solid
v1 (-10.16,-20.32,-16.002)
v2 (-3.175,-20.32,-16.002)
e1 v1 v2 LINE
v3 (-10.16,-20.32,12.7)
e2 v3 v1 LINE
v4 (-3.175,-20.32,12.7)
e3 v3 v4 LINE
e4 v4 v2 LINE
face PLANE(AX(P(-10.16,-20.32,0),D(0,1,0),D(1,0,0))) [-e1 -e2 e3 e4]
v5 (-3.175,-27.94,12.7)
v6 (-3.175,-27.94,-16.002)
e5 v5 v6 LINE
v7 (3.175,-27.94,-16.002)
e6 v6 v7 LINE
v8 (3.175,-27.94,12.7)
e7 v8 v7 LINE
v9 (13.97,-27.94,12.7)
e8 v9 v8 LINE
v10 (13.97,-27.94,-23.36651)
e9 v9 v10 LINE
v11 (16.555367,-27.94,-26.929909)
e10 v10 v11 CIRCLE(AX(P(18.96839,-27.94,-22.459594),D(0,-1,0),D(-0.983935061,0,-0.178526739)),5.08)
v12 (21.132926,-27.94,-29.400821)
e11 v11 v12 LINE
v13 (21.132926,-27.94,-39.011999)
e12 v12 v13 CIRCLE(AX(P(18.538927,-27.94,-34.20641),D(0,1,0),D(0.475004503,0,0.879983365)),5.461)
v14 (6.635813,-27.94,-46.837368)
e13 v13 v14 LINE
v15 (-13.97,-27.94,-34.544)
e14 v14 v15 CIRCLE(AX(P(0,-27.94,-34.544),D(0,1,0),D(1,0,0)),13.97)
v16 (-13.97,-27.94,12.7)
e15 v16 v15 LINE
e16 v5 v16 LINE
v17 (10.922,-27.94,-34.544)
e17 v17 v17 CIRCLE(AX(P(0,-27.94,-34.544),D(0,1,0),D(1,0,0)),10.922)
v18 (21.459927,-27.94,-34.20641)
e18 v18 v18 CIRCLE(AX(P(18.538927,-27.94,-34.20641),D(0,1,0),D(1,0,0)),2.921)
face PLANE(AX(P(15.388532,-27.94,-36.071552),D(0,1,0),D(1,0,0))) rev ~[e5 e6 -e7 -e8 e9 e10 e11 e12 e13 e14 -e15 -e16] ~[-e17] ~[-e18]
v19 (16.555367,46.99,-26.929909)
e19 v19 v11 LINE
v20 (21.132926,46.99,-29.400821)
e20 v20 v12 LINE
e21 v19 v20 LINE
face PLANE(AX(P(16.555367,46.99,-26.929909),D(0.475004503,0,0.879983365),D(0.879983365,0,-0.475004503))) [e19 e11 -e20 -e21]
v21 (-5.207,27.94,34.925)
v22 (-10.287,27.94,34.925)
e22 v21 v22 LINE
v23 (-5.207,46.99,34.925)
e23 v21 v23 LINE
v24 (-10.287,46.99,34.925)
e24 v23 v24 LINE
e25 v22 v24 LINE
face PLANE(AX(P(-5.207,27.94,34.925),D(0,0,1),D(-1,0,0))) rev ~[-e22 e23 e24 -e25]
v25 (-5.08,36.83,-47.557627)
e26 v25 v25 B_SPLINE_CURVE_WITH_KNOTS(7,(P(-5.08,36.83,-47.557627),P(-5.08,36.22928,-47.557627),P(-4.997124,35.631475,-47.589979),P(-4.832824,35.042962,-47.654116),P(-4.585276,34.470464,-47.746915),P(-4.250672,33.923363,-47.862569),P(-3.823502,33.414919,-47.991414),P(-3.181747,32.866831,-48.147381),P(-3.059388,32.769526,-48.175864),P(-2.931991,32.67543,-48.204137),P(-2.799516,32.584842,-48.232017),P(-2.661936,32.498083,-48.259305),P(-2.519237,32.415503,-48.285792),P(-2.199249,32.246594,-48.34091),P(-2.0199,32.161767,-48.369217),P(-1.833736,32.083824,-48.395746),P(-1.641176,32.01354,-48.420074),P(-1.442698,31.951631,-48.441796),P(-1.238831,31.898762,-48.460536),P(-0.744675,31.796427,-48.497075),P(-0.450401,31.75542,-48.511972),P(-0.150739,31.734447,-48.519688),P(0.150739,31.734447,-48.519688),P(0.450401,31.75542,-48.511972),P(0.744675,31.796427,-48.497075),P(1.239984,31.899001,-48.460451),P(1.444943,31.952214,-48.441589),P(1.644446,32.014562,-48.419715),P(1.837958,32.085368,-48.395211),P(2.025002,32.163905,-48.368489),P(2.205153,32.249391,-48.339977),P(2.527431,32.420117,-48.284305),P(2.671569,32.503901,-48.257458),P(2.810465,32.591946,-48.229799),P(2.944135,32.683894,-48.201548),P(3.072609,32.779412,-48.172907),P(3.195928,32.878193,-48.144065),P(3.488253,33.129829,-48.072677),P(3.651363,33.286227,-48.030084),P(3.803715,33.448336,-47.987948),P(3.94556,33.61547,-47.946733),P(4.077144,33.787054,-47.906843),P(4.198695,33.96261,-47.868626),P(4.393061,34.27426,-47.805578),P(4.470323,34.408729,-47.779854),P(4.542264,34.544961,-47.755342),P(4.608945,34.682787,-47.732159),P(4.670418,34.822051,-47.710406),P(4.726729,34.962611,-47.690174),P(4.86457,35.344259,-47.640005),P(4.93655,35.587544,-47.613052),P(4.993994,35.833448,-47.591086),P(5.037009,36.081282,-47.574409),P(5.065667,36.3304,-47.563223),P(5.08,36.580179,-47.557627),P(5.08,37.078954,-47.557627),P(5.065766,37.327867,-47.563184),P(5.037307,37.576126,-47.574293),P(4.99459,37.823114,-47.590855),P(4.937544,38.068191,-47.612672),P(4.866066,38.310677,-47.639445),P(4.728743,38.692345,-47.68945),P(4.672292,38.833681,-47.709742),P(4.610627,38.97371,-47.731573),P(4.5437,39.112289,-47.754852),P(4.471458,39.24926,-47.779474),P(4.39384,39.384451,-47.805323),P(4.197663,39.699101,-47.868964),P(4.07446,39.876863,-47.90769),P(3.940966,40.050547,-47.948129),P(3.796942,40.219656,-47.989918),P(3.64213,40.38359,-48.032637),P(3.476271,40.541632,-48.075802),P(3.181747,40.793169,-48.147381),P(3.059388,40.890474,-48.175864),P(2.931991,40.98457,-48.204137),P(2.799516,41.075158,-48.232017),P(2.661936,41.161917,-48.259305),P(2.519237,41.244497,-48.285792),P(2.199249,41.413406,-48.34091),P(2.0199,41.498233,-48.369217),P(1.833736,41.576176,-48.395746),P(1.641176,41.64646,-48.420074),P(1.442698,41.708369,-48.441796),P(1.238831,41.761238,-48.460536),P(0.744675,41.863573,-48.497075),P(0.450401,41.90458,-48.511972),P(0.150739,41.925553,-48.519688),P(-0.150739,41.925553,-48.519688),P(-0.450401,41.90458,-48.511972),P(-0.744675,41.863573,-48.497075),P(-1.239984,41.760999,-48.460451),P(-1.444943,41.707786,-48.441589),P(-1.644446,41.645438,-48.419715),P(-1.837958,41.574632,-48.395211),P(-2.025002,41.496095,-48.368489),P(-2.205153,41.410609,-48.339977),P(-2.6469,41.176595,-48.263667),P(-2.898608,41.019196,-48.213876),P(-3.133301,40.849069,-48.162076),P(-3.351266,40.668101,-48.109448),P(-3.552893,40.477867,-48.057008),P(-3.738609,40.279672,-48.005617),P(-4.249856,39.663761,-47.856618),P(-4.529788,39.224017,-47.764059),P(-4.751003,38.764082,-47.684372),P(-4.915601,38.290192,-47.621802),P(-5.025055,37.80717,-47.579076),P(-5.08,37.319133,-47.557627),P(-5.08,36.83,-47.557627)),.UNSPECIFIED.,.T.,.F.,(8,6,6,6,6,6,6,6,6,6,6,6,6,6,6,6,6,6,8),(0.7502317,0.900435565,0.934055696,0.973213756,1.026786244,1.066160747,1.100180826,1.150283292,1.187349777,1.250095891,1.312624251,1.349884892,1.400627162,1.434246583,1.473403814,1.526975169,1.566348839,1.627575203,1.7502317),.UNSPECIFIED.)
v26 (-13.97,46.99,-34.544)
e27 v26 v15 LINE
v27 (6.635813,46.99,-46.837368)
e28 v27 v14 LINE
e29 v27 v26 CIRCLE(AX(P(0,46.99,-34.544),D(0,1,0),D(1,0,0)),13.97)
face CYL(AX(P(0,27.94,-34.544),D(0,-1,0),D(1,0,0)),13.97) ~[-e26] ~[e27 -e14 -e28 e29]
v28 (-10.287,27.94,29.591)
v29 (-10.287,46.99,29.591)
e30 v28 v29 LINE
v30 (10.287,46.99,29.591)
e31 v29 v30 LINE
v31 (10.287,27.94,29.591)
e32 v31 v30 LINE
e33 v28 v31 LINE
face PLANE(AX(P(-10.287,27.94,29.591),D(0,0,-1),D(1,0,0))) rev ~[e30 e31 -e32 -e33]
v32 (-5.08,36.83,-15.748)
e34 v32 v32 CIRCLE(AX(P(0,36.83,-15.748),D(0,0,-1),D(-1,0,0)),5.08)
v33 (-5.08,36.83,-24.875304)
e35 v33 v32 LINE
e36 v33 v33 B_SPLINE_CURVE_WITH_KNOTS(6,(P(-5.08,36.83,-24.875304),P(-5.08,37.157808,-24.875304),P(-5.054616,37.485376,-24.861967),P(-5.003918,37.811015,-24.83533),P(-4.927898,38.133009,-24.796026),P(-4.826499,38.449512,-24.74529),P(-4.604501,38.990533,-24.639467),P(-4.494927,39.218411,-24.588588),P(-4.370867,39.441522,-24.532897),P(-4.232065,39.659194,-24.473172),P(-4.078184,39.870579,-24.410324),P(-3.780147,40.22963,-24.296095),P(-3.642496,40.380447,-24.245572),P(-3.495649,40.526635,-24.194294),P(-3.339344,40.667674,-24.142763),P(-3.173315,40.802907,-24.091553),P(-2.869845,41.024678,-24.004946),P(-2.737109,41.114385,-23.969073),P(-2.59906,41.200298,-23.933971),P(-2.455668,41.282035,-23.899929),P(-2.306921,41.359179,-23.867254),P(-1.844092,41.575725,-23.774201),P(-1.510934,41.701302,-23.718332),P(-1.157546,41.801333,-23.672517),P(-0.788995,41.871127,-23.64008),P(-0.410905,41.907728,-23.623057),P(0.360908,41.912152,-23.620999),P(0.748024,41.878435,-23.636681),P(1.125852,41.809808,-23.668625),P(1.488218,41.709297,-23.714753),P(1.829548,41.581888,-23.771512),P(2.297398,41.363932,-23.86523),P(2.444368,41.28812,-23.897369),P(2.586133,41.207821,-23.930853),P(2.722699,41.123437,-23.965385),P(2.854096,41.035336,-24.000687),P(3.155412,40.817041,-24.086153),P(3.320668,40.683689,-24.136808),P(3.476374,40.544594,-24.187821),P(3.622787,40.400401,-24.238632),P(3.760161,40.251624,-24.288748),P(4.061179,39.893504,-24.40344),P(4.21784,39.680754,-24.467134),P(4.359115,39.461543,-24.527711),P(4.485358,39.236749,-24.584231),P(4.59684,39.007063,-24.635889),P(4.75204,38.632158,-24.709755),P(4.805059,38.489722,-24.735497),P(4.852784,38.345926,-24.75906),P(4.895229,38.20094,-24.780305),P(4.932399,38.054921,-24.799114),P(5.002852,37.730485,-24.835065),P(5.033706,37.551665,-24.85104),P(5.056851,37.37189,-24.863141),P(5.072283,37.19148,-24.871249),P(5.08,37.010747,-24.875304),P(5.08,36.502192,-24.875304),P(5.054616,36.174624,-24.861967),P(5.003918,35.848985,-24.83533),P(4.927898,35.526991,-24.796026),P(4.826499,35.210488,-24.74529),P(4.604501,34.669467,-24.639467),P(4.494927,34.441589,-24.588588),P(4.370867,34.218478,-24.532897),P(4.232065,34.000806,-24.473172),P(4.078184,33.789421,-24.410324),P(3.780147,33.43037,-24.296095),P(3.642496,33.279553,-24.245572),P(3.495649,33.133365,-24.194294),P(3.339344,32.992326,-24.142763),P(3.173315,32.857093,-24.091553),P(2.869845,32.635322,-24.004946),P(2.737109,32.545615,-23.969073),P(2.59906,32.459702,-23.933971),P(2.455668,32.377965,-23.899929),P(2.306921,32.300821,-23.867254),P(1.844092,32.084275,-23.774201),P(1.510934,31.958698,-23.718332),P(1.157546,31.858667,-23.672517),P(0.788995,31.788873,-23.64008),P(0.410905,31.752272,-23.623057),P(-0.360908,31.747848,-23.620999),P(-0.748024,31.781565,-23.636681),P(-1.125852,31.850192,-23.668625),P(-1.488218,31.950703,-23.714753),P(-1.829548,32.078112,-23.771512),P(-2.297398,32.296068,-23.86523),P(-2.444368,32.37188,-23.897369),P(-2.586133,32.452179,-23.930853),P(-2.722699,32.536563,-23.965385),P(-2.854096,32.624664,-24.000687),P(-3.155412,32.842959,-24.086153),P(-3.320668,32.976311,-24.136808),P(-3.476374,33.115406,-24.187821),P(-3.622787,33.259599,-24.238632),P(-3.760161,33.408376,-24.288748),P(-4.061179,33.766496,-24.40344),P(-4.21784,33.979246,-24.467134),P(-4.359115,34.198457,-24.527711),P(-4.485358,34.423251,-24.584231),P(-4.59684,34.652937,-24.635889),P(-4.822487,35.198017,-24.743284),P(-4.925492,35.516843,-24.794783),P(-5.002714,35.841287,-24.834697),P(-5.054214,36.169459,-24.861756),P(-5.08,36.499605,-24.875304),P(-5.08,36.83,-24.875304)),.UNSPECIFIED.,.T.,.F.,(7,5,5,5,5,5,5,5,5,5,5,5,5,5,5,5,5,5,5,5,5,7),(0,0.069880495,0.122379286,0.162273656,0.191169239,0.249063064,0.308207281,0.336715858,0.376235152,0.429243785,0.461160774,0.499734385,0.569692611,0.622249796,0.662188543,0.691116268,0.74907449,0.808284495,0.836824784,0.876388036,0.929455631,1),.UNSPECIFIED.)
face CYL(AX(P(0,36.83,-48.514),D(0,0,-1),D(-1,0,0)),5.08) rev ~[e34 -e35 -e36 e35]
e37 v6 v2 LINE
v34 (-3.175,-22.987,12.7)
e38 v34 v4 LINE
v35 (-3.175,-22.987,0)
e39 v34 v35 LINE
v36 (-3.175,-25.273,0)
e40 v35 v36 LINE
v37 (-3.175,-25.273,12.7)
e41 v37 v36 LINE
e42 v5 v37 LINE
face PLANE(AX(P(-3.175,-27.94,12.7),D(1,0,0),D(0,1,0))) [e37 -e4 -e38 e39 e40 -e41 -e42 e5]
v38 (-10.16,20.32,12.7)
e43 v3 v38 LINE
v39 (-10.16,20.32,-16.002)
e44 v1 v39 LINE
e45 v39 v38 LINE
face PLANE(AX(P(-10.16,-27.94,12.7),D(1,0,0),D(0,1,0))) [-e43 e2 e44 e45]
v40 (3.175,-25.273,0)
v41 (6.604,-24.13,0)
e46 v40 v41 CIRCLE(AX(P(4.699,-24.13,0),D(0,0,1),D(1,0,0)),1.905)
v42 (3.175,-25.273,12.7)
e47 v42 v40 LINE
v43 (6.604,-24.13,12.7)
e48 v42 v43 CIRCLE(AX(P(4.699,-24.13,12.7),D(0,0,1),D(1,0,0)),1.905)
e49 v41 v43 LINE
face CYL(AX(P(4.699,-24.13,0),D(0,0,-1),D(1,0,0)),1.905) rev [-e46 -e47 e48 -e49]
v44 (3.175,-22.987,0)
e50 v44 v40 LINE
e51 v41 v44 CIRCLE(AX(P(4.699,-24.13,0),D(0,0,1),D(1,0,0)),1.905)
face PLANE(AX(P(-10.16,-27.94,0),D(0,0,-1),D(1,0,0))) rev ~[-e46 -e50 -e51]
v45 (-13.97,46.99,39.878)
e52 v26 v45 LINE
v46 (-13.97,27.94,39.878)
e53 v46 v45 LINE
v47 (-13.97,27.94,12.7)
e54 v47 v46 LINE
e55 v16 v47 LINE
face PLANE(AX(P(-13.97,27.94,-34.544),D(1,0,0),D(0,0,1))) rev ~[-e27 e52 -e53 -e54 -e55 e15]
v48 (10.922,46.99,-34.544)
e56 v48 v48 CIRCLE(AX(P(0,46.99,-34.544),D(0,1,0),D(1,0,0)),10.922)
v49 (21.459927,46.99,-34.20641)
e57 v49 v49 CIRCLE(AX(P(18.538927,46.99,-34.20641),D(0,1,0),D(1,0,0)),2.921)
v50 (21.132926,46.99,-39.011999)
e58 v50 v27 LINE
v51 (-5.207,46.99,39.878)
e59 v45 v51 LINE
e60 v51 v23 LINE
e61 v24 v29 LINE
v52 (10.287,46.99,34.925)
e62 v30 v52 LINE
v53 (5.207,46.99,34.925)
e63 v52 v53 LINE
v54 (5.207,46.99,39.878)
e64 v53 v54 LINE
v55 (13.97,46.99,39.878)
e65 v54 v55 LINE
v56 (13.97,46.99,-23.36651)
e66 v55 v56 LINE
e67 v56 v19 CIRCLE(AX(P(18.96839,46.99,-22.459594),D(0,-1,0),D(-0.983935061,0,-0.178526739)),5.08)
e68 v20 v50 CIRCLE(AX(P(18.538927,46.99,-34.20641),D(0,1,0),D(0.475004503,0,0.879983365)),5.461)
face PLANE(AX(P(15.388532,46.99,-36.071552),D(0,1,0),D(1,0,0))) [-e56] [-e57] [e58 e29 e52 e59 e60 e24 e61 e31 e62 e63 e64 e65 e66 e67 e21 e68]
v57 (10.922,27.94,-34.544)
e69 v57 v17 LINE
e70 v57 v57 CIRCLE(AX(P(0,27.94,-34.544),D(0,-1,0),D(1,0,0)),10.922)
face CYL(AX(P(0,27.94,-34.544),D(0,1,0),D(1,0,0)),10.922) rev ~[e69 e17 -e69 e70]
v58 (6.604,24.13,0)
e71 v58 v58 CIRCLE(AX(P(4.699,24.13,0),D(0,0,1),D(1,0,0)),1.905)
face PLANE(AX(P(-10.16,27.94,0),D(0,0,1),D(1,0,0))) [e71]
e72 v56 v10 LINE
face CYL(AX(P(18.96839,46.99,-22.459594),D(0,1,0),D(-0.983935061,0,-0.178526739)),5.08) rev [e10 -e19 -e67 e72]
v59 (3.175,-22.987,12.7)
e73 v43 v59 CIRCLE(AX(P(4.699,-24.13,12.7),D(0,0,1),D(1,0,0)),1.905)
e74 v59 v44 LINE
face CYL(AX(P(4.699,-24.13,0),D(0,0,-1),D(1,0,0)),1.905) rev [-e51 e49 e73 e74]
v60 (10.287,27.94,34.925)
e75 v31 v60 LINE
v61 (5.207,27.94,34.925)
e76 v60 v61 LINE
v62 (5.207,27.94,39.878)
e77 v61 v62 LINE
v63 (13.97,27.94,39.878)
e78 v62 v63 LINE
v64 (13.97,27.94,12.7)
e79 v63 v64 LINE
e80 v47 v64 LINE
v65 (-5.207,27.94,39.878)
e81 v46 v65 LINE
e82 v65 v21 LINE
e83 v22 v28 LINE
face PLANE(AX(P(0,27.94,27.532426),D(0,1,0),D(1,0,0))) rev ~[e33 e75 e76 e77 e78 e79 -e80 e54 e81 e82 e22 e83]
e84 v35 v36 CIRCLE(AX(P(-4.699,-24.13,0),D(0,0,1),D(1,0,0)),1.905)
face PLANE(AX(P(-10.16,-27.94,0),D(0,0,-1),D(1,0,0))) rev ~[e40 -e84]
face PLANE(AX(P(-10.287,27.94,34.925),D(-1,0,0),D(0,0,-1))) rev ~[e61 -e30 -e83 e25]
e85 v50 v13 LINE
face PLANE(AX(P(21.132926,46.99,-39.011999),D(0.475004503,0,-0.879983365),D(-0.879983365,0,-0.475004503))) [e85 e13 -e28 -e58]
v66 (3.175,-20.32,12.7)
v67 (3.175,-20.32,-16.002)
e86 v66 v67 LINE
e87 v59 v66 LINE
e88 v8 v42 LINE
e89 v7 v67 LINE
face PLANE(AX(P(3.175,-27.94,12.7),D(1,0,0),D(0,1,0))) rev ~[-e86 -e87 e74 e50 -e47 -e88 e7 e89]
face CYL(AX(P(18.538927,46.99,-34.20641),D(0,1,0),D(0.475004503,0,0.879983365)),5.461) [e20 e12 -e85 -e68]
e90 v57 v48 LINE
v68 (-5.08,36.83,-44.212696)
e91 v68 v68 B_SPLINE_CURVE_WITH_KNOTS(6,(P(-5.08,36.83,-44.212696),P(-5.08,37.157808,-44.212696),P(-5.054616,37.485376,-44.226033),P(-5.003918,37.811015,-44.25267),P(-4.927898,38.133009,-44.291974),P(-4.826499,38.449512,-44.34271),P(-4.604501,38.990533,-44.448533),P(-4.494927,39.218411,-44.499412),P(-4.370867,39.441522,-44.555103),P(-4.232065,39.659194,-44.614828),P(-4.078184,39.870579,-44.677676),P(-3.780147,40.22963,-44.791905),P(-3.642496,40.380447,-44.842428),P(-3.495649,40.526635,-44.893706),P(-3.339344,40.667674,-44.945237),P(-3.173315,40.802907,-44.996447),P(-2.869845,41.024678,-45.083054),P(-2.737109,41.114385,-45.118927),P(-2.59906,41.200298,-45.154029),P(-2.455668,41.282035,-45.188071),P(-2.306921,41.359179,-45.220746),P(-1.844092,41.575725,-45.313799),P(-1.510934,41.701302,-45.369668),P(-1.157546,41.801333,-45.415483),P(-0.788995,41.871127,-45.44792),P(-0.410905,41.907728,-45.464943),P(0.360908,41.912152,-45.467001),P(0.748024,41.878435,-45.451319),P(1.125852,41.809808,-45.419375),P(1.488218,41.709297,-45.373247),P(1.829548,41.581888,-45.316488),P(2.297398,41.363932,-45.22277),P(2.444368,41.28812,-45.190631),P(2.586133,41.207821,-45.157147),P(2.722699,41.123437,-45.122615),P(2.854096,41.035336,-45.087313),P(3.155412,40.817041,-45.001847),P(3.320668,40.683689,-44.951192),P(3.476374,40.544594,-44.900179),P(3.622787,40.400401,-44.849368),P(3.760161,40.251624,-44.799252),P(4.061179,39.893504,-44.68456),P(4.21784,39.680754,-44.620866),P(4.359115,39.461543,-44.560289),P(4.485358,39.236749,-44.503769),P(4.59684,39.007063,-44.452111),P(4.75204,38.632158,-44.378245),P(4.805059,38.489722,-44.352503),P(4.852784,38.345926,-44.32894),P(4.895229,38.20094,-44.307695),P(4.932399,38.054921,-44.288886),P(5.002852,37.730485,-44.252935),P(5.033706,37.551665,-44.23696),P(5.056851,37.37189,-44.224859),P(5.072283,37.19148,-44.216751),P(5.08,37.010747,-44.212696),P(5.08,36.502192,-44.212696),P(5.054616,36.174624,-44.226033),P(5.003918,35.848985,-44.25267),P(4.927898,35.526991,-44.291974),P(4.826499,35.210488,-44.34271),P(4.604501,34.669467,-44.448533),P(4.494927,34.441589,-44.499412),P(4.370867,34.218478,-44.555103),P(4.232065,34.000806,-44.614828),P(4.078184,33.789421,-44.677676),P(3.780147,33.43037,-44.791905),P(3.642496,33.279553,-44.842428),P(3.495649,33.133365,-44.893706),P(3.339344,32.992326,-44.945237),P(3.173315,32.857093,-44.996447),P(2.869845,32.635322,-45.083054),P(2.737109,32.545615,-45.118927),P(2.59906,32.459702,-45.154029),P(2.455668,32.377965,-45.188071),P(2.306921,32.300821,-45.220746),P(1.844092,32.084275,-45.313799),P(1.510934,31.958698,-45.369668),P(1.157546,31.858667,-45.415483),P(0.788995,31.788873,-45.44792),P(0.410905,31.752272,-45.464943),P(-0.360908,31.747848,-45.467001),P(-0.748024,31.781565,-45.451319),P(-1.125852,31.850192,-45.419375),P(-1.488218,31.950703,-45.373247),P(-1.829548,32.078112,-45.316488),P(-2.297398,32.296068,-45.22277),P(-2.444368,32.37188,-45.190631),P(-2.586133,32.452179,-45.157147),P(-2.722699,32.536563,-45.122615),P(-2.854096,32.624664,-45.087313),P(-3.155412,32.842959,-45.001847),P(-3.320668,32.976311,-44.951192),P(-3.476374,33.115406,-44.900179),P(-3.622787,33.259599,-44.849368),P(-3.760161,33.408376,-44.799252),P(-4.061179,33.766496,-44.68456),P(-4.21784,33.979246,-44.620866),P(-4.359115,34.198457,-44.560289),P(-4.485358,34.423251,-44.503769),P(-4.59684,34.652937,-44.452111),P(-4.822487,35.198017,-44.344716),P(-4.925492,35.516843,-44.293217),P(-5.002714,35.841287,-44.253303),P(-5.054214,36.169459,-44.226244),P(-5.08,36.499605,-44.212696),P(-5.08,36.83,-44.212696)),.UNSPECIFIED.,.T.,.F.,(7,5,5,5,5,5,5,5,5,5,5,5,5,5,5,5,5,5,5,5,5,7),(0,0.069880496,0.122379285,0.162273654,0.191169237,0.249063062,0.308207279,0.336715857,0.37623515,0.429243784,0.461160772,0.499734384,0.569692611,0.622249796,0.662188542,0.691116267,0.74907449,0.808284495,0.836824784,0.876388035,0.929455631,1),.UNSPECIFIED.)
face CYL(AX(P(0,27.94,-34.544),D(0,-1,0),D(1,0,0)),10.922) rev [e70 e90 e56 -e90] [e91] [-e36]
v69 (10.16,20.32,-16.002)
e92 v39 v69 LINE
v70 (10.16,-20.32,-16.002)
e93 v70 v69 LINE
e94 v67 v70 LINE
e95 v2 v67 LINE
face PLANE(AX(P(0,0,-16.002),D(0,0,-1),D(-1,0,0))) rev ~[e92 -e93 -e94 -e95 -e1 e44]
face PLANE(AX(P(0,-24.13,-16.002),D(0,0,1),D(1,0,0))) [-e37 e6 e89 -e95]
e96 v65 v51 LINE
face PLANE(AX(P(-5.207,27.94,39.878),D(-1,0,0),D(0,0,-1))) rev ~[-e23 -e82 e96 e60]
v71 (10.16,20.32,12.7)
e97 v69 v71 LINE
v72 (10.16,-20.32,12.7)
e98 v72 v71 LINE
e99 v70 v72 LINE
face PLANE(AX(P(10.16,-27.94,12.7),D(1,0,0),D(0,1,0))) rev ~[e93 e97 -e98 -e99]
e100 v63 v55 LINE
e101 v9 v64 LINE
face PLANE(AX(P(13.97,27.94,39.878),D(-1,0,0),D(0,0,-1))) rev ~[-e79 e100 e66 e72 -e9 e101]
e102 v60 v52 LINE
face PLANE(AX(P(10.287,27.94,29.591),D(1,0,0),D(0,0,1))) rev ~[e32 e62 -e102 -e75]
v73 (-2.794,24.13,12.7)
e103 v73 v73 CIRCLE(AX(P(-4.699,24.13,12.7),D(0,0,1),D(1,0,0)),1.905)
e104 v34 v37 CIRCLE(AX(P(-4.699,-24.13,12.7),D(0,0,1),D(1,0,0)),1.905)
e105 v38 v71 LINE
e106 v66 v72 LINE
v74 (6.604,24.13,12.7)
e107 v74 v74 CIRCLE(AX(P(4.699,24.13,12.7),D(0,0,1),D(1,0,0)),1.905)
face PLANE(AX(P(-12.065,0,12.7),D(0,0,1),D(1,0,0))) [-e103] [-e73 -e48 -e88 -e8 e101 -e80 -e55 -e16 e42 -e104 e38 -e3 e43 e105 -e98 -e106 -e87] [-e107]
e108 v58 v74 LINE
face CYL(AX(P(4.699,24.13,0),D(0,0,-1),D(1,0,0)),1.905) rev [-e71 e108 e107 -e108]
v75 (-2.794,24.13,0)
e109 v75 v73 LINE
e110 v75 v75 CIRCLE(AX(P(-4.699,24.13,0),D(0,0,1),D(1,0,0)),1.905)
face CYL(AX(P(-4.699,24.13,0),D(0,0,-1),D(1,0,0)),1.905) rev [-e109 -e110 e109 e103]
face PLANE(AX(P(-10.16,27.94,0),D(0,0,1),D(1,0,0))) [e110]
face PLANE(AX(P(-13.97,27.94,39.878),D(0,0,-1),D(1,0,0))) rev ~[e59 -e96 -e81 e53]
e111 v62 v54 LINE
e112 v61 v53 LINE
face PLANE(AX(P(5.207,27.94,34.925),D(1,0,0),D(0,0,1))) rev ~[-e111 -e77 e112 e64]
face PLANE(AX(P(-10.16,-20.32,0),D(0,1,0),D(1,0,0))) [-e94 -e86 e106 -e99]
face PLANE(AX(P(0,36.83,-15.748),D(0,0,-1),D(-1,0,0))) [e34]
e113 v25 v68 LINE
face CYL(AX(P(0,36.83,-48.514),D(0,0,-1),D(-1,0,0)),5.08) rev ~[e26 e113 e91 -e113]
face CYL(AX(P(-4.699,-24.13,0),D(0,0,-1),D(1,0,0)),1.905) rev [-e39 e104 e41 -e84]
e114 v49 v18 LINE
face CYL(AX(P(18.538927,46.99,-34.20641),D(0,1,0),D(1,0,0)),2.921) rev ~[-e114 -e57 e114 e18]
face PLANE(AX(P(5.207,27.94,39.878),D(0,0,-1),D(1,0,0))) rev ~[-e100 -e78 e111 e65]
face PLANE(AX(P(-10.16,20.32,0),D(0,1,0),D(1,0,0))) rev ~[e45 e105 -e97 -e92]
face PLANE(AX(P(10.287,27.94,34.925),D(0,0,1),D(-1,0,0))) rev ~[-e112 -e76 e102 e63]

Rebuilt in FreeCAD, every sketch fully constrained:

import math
import FreeCAD as App
import Part
import Sketcher
Q = App.Units.Quantity

doc = App.newDocument("Part")
body = doc.addObject("PartDesign::Body", "Body")

sketch1 = doc.addObject("Sketcher::SketchObject", "Sketch")
body.addObject(sketch1)
sketch1.AttachmentSupport = (doc.XY_Plane, [""])
sketch1.MapMode = "FlatFace"
sketch1.addGeometry(Part.LineSegment(App.Vector(-10.16, 27.94, 0), App.Vector(-10.16, 20.32, 0)), False)
sketch1.addGeometry(Part.LineSegment(App.Vector(-10.16, 20.32, 0), App.Vector(10.16, 20.32, 0)), False)
sketch1.addGeometry(Part.LineSegment(App.Vector(10.16, 20.32, 0), App.Vector(10.16, 27.94, 0)), False)
sketch1.addGeometry(Part.LineSegment(App.Vector(10.16, 27.94, 0), App.Vector(-10.16, 27.94, 0)), False)
sketch1.addGeometry(Part.Circle(App.Vector(-4.699, 24.13, 0), App.Vector(0, 0, 1), 1.905), False)
sketch1.addGeometry(Part.Circle(App.Vector(4.699, 24.13, 0), App.Vector(0, 0, 1), 1.905), False)
sketch1.addConstraint(Sketcher.Constraint("Coincident", 0, 2, 1, 1))
sketch1.addConstraint(Sketcher.Constraint("Coincident", 1, 2, 2, 1))
sketch1.addConstraint(Sketcher.Constraint("Coincident", 2, 2, 3, 1))
sketch1.addConstraint(Sketcher.Constraint("Coincident", 3, 2, 0, 1))
sketch1.addConstraint(Sketcher.Constraint("Vertical", 0))
sketch1.addConstraint(Sketcher.Constraint("Horizontal", 1))
sketch1.addConstraint(Sketcher.Constraint("Vertical", 2))
sketch1.addConstraint(Sketcher.Constraint("Horizontal", 3))
sketch1.addConstraint(Sketcher.Constraint("Equal", 4, 5))
sketch1.addConstraint(Sketcher.Constraint("Symmetric", 4, 3, 5, 3, -2))
sketch1.addConstraint(Sketcher.Constraint("Diameter", 4, Q("0.15 in")))
sketch1.addConstraint(Sketcher.Constraint("DistanceX", 1, 1, 1, 2, Q("0.8 in")))
sketch1.addConstraint(Sketcher.Constraint("DistanceY", 0, 2, 0, 1, Q("0.3 in")))
sketch1.addConstraint(Sketcher.Constraint("DistanceX", 0, 2, -1, 1, Q("0.4 in")))
sketch1.addConstraint(Sketcher.Constraint("DistanceY", -1, 1, 0, 2, Q("0.8 in")))
sketch1.addConstraint(Sketcher.Constraint("DistanceY", -1, 1, 4, 3, Q("0.95 in")))
sketch1.addConstraint(Sketcher.Constraint("DistanceX", 4, 3, 5, 3, Q("0.37 in")))
pad1 = doc.addObject("PartDesign::Pad", "Pad")
body.addObject(pad1)
pad1.Profile = sketch1
pad1.Length = Q("0.5 in")
body2 = doc.addObject("PartDesign::Body", "Body001")

sketch2 = doc.addObject("Sketcher::SketchObject", "Sketch001")
body2.addObject(sketch2)
sketch2.AttachmentSupport = (doc.getObject("XY_Plane001"), [""])
sketch2.MapMode = "FlatFace"
sketch2.addGeometry(Part.LineSegment(App.Vector(-10.16, -20.32, 0), App.Vector(-10.16, -27.94, 0)), False)
sketch2.addGeometry(Part.LineSegment(App.Vector(-10.16, -27.94, 0), App.Vector(10.16, -27.94, 0)), False)
sketch2.addGeometry(Part.LineSegment(App.Vector(10.16, -27.94, 0), App.Vector(10.16, -20.32, 0)), False)
sketch2.addGeometry(Part.LineSegment(App.Vector(10.16, -20.32, 0), App.Vector(-10.16, -20.32, 0)), False)
sketch2.addGeometry(Part.Circle(App.Vector(-4.699, -24.13, 0), App.Vector(0, 0, 1), 1.905), False)
sketch2.addGeometry(Part.Circle(App.Vector(4.699, -24.13, 0), App.Vector(0, 0, 1), 1.905), False)
sketch2.addConstraint(Sketcher.Constraint("Coincident", 0, 2, 1, 1))
sketch2.addConstraint(Sketcher.Constraint("Coincident", 1, 2, 2, 1))
sketch2.addConstraint(Sketcher.Constraint("Coincident", 2, 2, 3, 1))
sketch2.addConstraint(Sketcher.Constraint("Coincident", 3, 2, 0, 1))
sketch2.addConstraint(Sketcher.Constraint("Vertical", 0))
sketch2.addConstraint(Sketcher.Constraint("Horizontal", 1))
sketch2.addConstraint(Sketcher.Constraint("Vertical", 2))
sketch2.addConstraint(Sketcher.Constraint("Horizontal", 3))
sketch2.addConstraint(Sketcher.Constraint("Equal", 4, 5))
sketch2.addConstraint(Sketcher.Constraint("Symmetric", 4, 3, 5, 3, -2))
sketch2.addConstraint(Sketcher.Constraint("Diameter", 4, Q("0.15 in")))
sketch2.addConstraint(Sketcher.Constraint("DistanceX", 1, 1, 1, 2, Q("0.8 in")))
sketch2.addConstraint(Sketcher.Constraint("DistanceY", 0, 2, 0, 1, Q("0.3 in")))
sketch2.addConstraint(Sketcher.Constraint("DistanceX", 0, 2, -1, 1, Q("0.4 in")))
sketch2.addConstraint(Sketcher.Constraint("DistanceY", 0, 2, -1, 1, Q("1.1 in")))
sketch2.addConstraint(Sketcher.Constraint("DistanceY", 4, 3, -1, 1, Q("0.95 in")))
sketch2.addConstraint(Sketcher.Constraint("DistanceX", 4, 3, 5, 3, Q("0.37 in")))
pad2 = doc.addObject("PartDesign::Pad", "Pad001")
body2.addObject(pad2)
pad2.Profile = sketch2
pad2.Length = Q("0.5 in")
body.AllowCompound = True
doc.recompute()

boolean = doc.addObject("PartDesign::Boolean", "Boolean")
body.addObject(boolean)
boolean.Type = "Fuse"
boolean.addObjects([body2])

sketch3 = doc.addObject("Sketcher::SketchObject", "Sketch002")
body.addObject(sketch3)
sketch3.AttachmentSupport = (doc.XY_Plane, [""])
sketch3.MapMode = "FlatFace"
sketch3.AttachmentOffset = App.Placement(App.Vector(0, 0, 0.5 * 25.4), App.Rotation())
sketch3.addGeometry(Part.LineSegment(App.Vector(-13.97, 27.94, 0), App.Vector(-13.97, -27.94, 0)), False)
sketch3.addGeometry(Part.LineSegment(App.Vector(-13.97, -27.94, 0), App.Vector(-10.16, -27.94, 0)), False)
sketch3.addGeometry(Part.LineSegment(App.Vector(-10.16, -27.94, 0), App.Vector(-10.16, 27.94, 0)), False)
sketch3.addGeometry(Part.LineSegment(App.Vector(-10.16, 27.94, 0), App.Vector(-13.97, 27.94, 0)), False)
sketch3.addGeometry(Part.LineSegment(App.Vector(10.16, 27.94, 0), App.Vector(10.16, -27.94, 0)), False)
sketch3.addGeometry(Part.LineSegment(App.Vector(10.16, -27.94, 0), App.Vector(13.97, -27.94, 0)), False)
sketch3.addGeometry(Part.LineSegment(App.Vector(13.97, -27.94, 0), App.Vector(13.97, 27.94, 0)), False)
sketch3.addGeometry(Part.LineSegment(App.Vector(13.97, 27.94, 0), App.Vector(10.16, 27.94, 0)), False)
sketch3.addConstraint(Sketcher.Constraint("Coincident", 0, 2, 1, 1))
sketch3.addConstraint(Sketcher.Constraint("Coincident", 1, 2, 2, 1))
sketch3.addConstraint(Sketcher.Constraint("Coincident", 2, 2, 3, 1))
sketch3.addConstraint(Sketcher.Constraint("Coincident", 3, 2, 0, 1))
sketch3.addConstraint(Sketcher.Constraint("Coincident", 4, 2, 5, 1))
sketch3.addConstraint(Sketcher.Constraint("Coincident", 5, 2, 6, 1))
sketch3.addConstraint(Sketcher.Constraint("Coincident", 6, 2, 7, 1))
sketch3.addConstraint(Sketcher.Constraint("Coincident", 7, 2, 4, 1))
sketch3.addConstraint(Sketcher.Constraint("Vertical", 0))
sketch3.addConstraint(Sketcher.Constraint("Horizontal", 1))
sketch3.addConstraint(Sketcher.Constraint("Vertical", 2))
sketch3.addConstraint(Sketcher.Constraint("Horizontal", 3))
sketch3.addConstraint(Sketcher.Constraint("Vertical", 4))
sketch3.addConstraint(Sketcher.Constraint("Horizontal", 5))
sketch3.addConstraint(Sketcher.Constraint("Vertical", 6))
sketch3.addConstraint(Sketcher.Constraint("Horizontal", 7))
sketch3.addConstraint(Sketcher.Constraint("Symmetric", 2, 2, 4, 2, -1, 1))
sketch3.addConstraint(Sketcher.Constraint("Symmetric", 0, 2, 6, 2, -1, 1))
sketch3.addConstraint(Sketcher.Constraint("Horizontal", 1, 2, 4, 2))
sketch3.addConstraint(Sketcher.Constraint("DistanceY", 0, 2, 0, 1, Q("2.2 in")))
sketch3.addConstraint(Sketcher.Constraint("DistanceX", 1, 1, 1, 2, Q("0.15 in")))
sketch3.addConstraint(Sketcher.Constraint("DistanceX", 1, 2, -1, 1, Q("0.4 in")))
pad3 = doc.addObject("PartDesign::Pad", "Pad002")
body.addObject(pad3)
pad3.Profile = sketch3
pad3.Length = Q("1.13 in")
pad3.Reversed = True

sketch4 = doc.addObject("Sketcher::SketchObject", "Sketch003")
body.addObject(sketch4)
sketch4.AttachmentSupport = (doc.XY_Plane, [""])
sketch4.MapMode = "FlatFace"
sketch4.AttachmentOffset = App.Placement(App.Vector(0, 0, -0.63 * 25.4), App.Rotation())
sketch4.addGeometry(Part.LineSegment(App.Vector(13.97, 27.94, 0), App.Vector(13.97, -27.94, 0)), False)
sketch4.addGeometry(Part.LineSegment(App.Vector(13.97, -27.94, 0), App.Vector(-13.97, -27.94, 0)), False)
sketch4.addGeometry(Part.LineSegment(App.Vector(-13.97, -27.94, 0), App.Vector(-13.97, 27.94, 0)), False)
sketch4.addGeometry(Part.LineSegment(App.Vector(-13.97, 27.94, 0), App.Vector(13.97, 27.94, 0)), False)
sketch4.addConstraint(Sketcher.Constraint("Coincident", 0, 2, 1, 1))
sketch4.addConstraint(Sketcher.Constraint("Coincident", 1, 2, 2, 1))
sketch4.addConstraint(Sketcher.Constraint("Coincident", 2, 2, 3, 1))
sketch4.addConstraint(Sketcher.Constraint("Coincident", 3, 2, 0, 1))
sketch4.addConstraint(Sketcher.Constraint("Vertical", 0))
sketch4.addConstraint(Sketcher.Constraint("Horizontal", 1))
sketch4.addConstraint(Sketcher.Constraint("Vertical", 2))
sketch4.addConstraint(Sketcher.Constraint("Horizontal", 3))
sketch4.addConstraint(Sketcher.Constraint("Symmetric", 0, 2, 2, 2, -1, 1))
sketch4.addConstraint(Sketcher.Constraint("DistanceX", 1, 2, 1, 1, Q("1.1 in")))
sketch4.addConstraint(Sketcher.Constraint("DistanceY", 0, 2, 0, 1, Q("2.2 in")))
pad4 = doc.addObject("PartDesign::Pad", "Pad003")
body.addObject(pad4)
pad4.Profile = sketch4
pad4.Length = Q("0.3 in")
pad4.Reversed = True

sketch5 = doc.addObject("Sketcher::SketchObject", "Sketch004")
body.addObject(sketch5)
sketch5.AttachmentSupport = (doc.XZ_Plane, [""])
sketch5.MapMode = "FlatFace"
sketch5.AttachmentOffset = App.Placement(App.Vector(0, 0, -1.1 * 25.4), App.Rotation())
sketch5.addGeometry(Part.LineSegment(App.Vector(8.710386, -23.622, 0), App.Vector(13.97, -23.622, 0)), False)
sketch5.addGeometry(Part.LineSegment(App.Vector(13.97, -23.622, 0), App.Vector(13.97, -34.544, 0)), False)
sketch5.addGeometry(Part.ArcOfCircle(Part.Circle(App.Vector(0, -34.544, 0), App.Vector(0, 0, 1), 13.97), math.radians(180), math.radians(360)), False)
sketch5.addGeometry(Part.LineSegment(App.Vector(-13.97, -34.544, 0), App.Vector(-13.97, -23.622, 0)), False)
sketch5.addGeometry(Part.LineSegment(App.Vector(-13.97, -23.622, 0), App.Vector(-8.710386, -23.622, 0)), False)
sketch5.addGeometry(Part.ArcOfCircle(Part.Circle(App.Vector(0, -34.544, 0), App.Vector(0, 0, 1), 13.97), math.radians(51.427349), math.radians(128.572651)), False)
sketch5.addGeometry(Part.Circle(App.Vector(0, -34.544, 0), App.Vector(0, 0, 1), 10.922), False)
sketch5.addConstraint(Sketcher.Constraint("Coincident", 0, 2, 1, 1))
sketch5.addConstraint(Sketcher.Constraint("Tangent", 1, 2, 2, 2))
sketch5.addConstraint(Sketcher.Constraint("Tangent", 2, 1, 3, 1))
sketch5.addConstraint(Sketcher.Constraint("Coincident", 3, 2, 4, 1))
sketch5.addConstraint(Sketcher.Constraint("Coincident", 4, 2, 5, 2))
sketch5.addConstraint(Sketcher.Constraint("Coincident", 5, 1, 0, 1))
sketch5.addConstraint(Sketcher.Constraint("Horizontal", 0))
sketch5.addConstraint(Sketcher.Constraint("Vertical", 1))
sketch5.addConstraint(Sketcher.Constraint("Vertical", 3))
sketch5.addConstraint(Sketcher.Constraint("Horizontal", 4))
sketch5.addConstraint(Sketcher.Constraint("Coincident", 5, 3, 2, 3))
sketch5.addConstraint(Sketcher.Constraint("Coincident", 6, 3, 2, 3))
sketch5.addConstraint(Sketcher.Constraint("Equal", 2, 5))
sketch5.addConstraint(Sketcher.Constraint("Symmetric", 0, 2, 3, 2, -2))
sketch5.addConstraint(Sketcher.Constraint("Diameter", 6, Q("0.86 in")))
sketch5.addConstraint(Sketcher.Constraint("Radius", 2, Q("0.55 in")))
sketch5.addConstraint(Sketcher.Constraint("DistanceY", 1, 2, 1, 1, Q("0.43 in")))
sketch5.addConstraint(Sketcher.Constraint("DistanceY", 2, 3, -1, 1, Q("1.36 in")))
pad5 = doc.addObject("PartDesign::Pad", "Pad004")
body.addObject(pad5)
pad5.Profile = sketch5
pad5.Length = Q("2.2 in")

sketch6 = doc.addObject("Sketcher::SketchObject", "Sketch005")
body.addObject(sketch6)
sketch6.AttachmentSupport = (doc.XZ_Plane, [""])
sketch6.MapMode = "FlatFace"
sketch6.AttachmentOffset = App.Placement(App.Vector(0, 0, -1.1 * 25.4), App.Rotation())
sketch6.addGeometry(Part.LineSegment(App.Vector(-10.16, -16.002, 0), App.Vector(-10.16, 0, 0)), False)
sketch6.addGeometry(Part.LineSegment(App.Vector(-10.16, 0, 0), App.Vector(10.16, 0, 0)), False)
sketch6.addGeometry(Part.LineSegment(App.Vector(10.16, 0, 0), App.Vector(10.16, -16.002, 0)), False)
sketch6.addGeometry(Part.LineSegment(App.Vector(10.16, -16.002, 0), App.Vector(-10.16, -16.002, 0)), False)
sketch6.addConstraint(Sketcher.Constraint("Coincident", 0, 2, 1, 1))
sketch6.addConstraint(Sketcher.Constraint("Coincident", 1, 2, 2, 1))
sketch6.addConstraint(Sketcher.Constraint("Coincident", 2, 2, 3, 1))
sketch6.addConstraint(Sketcher.Constraint("Coincident", 3, 2, 0, 1))
sketch6.addConstraint(Sketcher.Constraint("Vertical", 0))
sketch6.addConstraint(Sketcher.Constraint("Horizontal", 1))
sketch6.addConstraint(Sketcher.Constraint("Vertical", 2))
sketch6.addConstraint(Sketcher.Constraint("Horizontal", 3))
sketch6.addConstraint(Sketcher.Constraint("Symmetric", 0, 2, 1, 2, -1, 1))
sketch6.addConstraint(Sketcher.Constraint("DistanceX", 1, 1, 1, 2, Q("0.8 in")))
sketch6.addConstraint(Sketcher.Constraint("DistanceY", 0, 1, 0, 2, Q("0.63 in")))
pad6 = doc.addObject("PartDesign::Pad", "Pad005")
body.addObject(pad6)
pad6.Profile = sketch6
pad6.Length = Q("0.3 in")

sketch7 = doc.addObject("Sketcher::SketchObject", "Sketch006")
body.addObject(sketch7)
sketch7.AttachmentSupport = (doc.XZ_Plane, [""])
sketch7.MapMode = "FlatFace"
sketch7.AttachmentOffset = App.Placement(App.Vector(0, 0, 1.1 * 25.4), App.Rotation())
sketch7.addGeometry(Part.LineSegment(App.Vector(-10.16, 0, 0), App.Vector(-10.16, -16.002, 0)), False)
sketch7.addGeometry(Part.LineSegment(App.Vector(-10.16, -16.002, 0), App.Vector(10.16, -16.002, 0)), False)
sketch7.addGeometry(Part.LineSegment(App.Vector(10.16, -16.002, 0), App.Vector(10.16, 0, 0)), False)
sketch7.addGeometry(Part.LineSegment(App.Vector(10.16, 0, 0), App.Vector(-10.16, 0, 0)), False)
sketch7.addConstraint(Sketcher.Constraint("Coincident", 0, 2, 1, 1))
sketch7.addConstraint(Sketcher.Constraint("Coincident", 1, 2, 2, 1))
sketch7.addConstraint(Sketcher.Constraint("Coincident", 2, 2, 3, 1))
sketch7.addConstraint(Sketcher.Constraint("Coincident", 3, 2, 0, 1))
sketch7.addConstraint(Sketcher.Constraint("Vertical", 0))
sketch7.addConstraint(Sketcher.Constraint("Horizontal", 1))
sketch7.addConstraint(Sketcher.Constraint("Vertical", 2))
sketch7.addConstraint(Sketcher.Constraint("Horizontal", 3))
sketch7.addConstraint(Sketcher.Constraint("Symmetric", 2, 2, 3, 2, -1, 1))
sketch7.addConstraint(Sketcher.Constraint("DistanceX", 1, 1, 1, 2, Q("0.8 in")))
sketch7.addConstraint(Sketcher.Constraint("DistanceY", 0, 2, 0, 1, Q("0.63 in")))
pad7 = doc.addObject("PartDesign::Pad", "Pad006")
body.addObject(pad7)
pad7.Profile = sketch7
pad7.Length = Q("0.3 in")
pad7.Reversed = True

sketch8 = doc.addObject("Sketcher::SketchObject", "Sketch007")
body.addObject(sketch8)
sketch8.AttachmentSupport = (doc.XZ_Plane, [""])
sketch8.MapMode = "FlatFace"
sketch8.AttachmentOffset = App.Placement(App.Vector(0, 0, -1.1 * 25.4), App.Rotation())
sketch8.addGeometry(Part.LineSegment(App.Vector(-13.97, 39.878, 0), App.Vector(-5.207, 39.878, 0)), False)
sketch8.addGeometry(Part.LineSegment(App.Vector(-5.207, 39.878, 0), App.Vector(-5.207, 34.925, 0)), False)
sketch8.addGeometry(Part.LineSegment(App.Vector(-5.207, 34.925, 0), App.Vector(-10.287, 34.925, 0)), False)
sketch8.addGeometry(Part.LineSegment(App.Vector(-10.287, 34.925, 0), App.Vector(-10.287, 29.591, 0)), False)
sketch8.addGeometry(Part.LineSegment(App.Vector(-10.287, 29.591, 0), App.Vector(10.287, 29.591, 0)), False)
sketch8.addGeometry(Part.LineSegment(App.Vector(10.287, 29.591, 0), App.Vector(10.287, 34.925, 0)), False)
sketch8.addGeometry(Part.LineSegment(App.Vector(10.287, 34.925, 0), App.Vector(5.207, 34.925, 0)), False)
sketch8.addGeometry(Part.LineSegment(App.Vector(5.207, 34.925, 0), App.Vector(5.207, 39.878, 0)), False)
sketch8.addGeometry(Part.LineSegment(App.Vector(5.207, 39.878, 0), App.Vector(13.97, 39.878, 0)), False)
sketch8.addGeometry(Part.LineSegment(App.Vector(13.97, 39.878, 0), App.Vector(13.97, -34.544, 0)), False)
sketch8.addGeometry(Part.ArcOfCircle(Part.Circle(App.Vector(0, -34.544, 0), App.Vector(0, 0, 1), 13.97), math.radians(180), math.radians(360)), False)
sketch8.addGeometry(Part.LineSegment(App.Vector(-13.97, -34.544, 0), App.Vector(-13.97, 39.878, 0)), False)
sketch8.addGeometry(Part.Circle(App.Vector(0, -34.544, 0), App.Vector(0, 0, 1), 10.922), False)
sketch8.addConstraint(Sketcher.Constraint("Coincident", 0, 2, 1, 1))
sketch8.addConstraint(Sketcher.Constraint("Coincident", 1, 2, 2, 1))
sketch8.addConstraint(Sketcher.Constraint("Coincident", 2, 2, 3, 1))
sketch8.addConstraint(Sketcher.Constraint("Coincident", 3, 2, 4, 1))
sketch8.addConstraint(Sketcher.Constraint("Coincident", 4, 2, 5, 1))
sketch8.addConstraint(Sketcher.Constraint("Coincident", 5, 2, 6, 1))
sketch8.addConstraint(Sketcher.Constraint("Coincident", 6, 2, 7, 1))
sketch8.addConstraint(Sketcher.Constraint("Coincident", 7, 2, 8, 1))
sketch8.addConstraint(Sketcher.Constraint("Coincident", 8, 2, 9, 1))
sketch8.addConstraint(Sketcher.Constraint("Tangent", 9, 2, 10, 2))
sketch8.addConstraint(Sketcher.Constraint("Tangent", 10, 1, 11, 1))
sketch8.addConstraint(Sketcher.Constraint("Coincident", 11, 2, 0, 1))
sketch8.addConstraint(Sketcher.Constraint("Horizontal", 0))
sketch8.addConstraint(Sketcher.Constraint("Vertical", 1))
sketch8.addConstraint(Sketcher.Constraint("Horizontal", 2))
sketch8.addConstraint(Sketcher.Constraint("Vertical", 3))
sketch8.addConstraint(Sketcher.Constraint("Horizontal", 4))
sketch8.addConstraint(Sketcher.Constraint("Vertical", 5))
sketch8.addConstraint(Sketcher.Constraint("Horizontal", 6))
sketch8.addConstraint(Sketcher.Constraint("Vertical", 7))
sketch8.addConstraint(Sketcher.Constraint("Horizontal", 8))
sketch8.addConstraint(Sketcher.Constraint("Vertical", 9))
sketch8.addConstraint(Sketcher.Constraint("Vertical", 11))
sketch8.addConstraint(Sketcher.Constraint("Coincident", 12, 3, 10, 3))
sketch8.addConstraint(Sketcher.Constraint("Symmetric", 2, 2, 5, 2, -2))
sketch8.addConstraint(Sketcher.Constraint("Symmetric", 0, 2, 7, 2, -2))
sketch8.addConstraint(Sketcher.Constraint("PointOnObject", 10, 3, -2))
sketch8.addConstraint(Sketcher.Constraint("Diameter", 12, Q("0.86 in")))
sketch8.addConstraint(Sketcher.Constraint("Radius", 10, Q("0.55 in")))
sketch8.addConstraint(Sketcher.Constraint("DistanceX", 2, 2, 2, 1, Q("0.2 in")))
sketch8.addConstraint(Sketcher.Constraint("DistanceX", 4, 1, 4, 2, Q("0.81 in")))
sketch8.addConstraint(Sketcher.Constraint("DistanceY", 3, 2, 3, 1, Q("0.21 in")))
sketch8.addConstraint(Sketcher.Constraint("DistanceY", 9, 2, 9, 1, Q("2.93 in")))
sketch8.addConstraint(Sketcher.Constraint("DistanceY", 1, 2, 1, 1, Q("0.195 in")))
sketch8.addConstraint(Sketcher.Constraint("DistanceY", 10, 3, -1, 1, Q("1.36 in")))
pad8 = doc.addObject("PartDesign::Pad", "Pad007")
body.addObject(pad8)
pad8.Profile = sketch8
pad8.Length = Q("0.75 in")
pad8.Reversed = True

sketch9 = doc.addObject("Sketcher::SketchObject", "Sketch008")
body.addObject(sketch9)
sketch9.AttachmentSupport = (doc.XZ_Plane, [""])
sketch9.MapMode = "FlatFace"
sketch9.AttachmentOffset = App.Placement(App.Vector(0, 0, -1.85 * 25.4), App.Rotation())
sketch9.addGeometry(Part.LineSegment(App.Vector(21.132926, -39.011999, 0), App.Vector(6.635813, -46.837368, 0)), False)
sketch9.addGeometry(Part.ArcOfCircle(Part.Circle(App.Vector(0, -34.544, 0), App.Vector(0, 0, 1), 13.97), math.radians(-61.640357), math.radians(0)), False)
sketch9.addGeometry(Part.LineSegment(App.Vector(13.97, -34.544, 0), App.Vector(13.97, -23.36651, 0)), False)
sketch9.addGeometry(Part.ArcOfCircle(Part.Circle(App.Vector(18.96839, -22.459594, 0), App.Vector(0, 0, 1), 5.08), math.radians(-169.716042), math.radians(-118.359643)), False)
sketch9.addGeometry(Part.LineSegment(App.Vector(16.555367, -26.929909, 0), App.Vector(21.132926, -29.400821, 0)), False)
sketch9.addGeometry(Part.ArcOfCircle(Part.Circle(App.Vector(18.538927, -34.20641, 0), App.Vector(0, 0, 1), 5.461), math.radians(-61.640357), math.radians(61.640357)), False)
sketch9.addGeometry(Part.Circle(App.Vector(18.538927, -34.20641, 0), App.Vector(0, 0, 1), 2.921), False)
sketch9.addConstraint(Sketcher.Constraint("Tangent", 0, 2, 1, 1))
sketch9.addConstraint(Sketcher.Constraint("Tangent", 1, 2, 2, 1))
sketch9.addConstraint(Sketcher.Constraint("Coincident", 2, 2, 3, 1))
sketch9.addConstraint(Sketcher.Constraint("Tangent", 3, 2, 4, 1))
sketch9.addConstraint(Sketcher.Constraint("Tangent", 4, 2, 5, 2))
sketch9.addConstraint(Sketcher.Constraint("Tangent", 5, 1, 0, 1))
sketch9.addConstraint(Sketcher.Constraint("Vertical", 2))
sketch9.addConstraint(Sketcher.Constraint("Coincident", 6, 3, 5, 3))
sketch9.addConstraint(Sketcher.Constraint("PointOnObject", 1, 3, -2))
sketch9.addConstraint(Sketcher.Constraint("Vertical", 4, 2, 5, 1))
sketch9.addConstraint(Sketcher.Constraint("Radius", 3, Q("0.2 in")))
sketch9.addConstraint(Sketcher.Constraint("Diameter", 6, Q("0.23 in")))
sketch9.addConstraint(Sketcher.Constraint("Radius", 1, Q("0.55 in")))
sketch9.addConstraint(Sketcher.Constraint("Radius", 5, Q("0.215 in")))
sketch9.addConstraint(Sketcher.Constraint("DistanceY", 1, 3, -1, 1, Q("1.36 in")))
sketch9.addConstraint(Sketcher.Constraint("DistanceY", 2, 1, 2, 2, 11.17749))
sketch9.addConstraint(Sketcher.Constraint("DistanceY", 5, 1, -1, 1, 39.011999))
sketch9.addConstraint(Sketcher.Constraint("DistanceY", 5, 3, 2, 2, 10.8399))
pad9 = doc.addObject("PartDesign::Pad", "Pad008")
body.addObject(pad9)
pad9.Profile = sketch9
pad9.Length = Q("2.95 in")

sketch10 = doc.addObject("Sketcher::SketchObject", "Sketch009")
body.addObject(sketch10)
sketch10.AttachmentSupport = (doc.XY_Plane, [""])
sketch10.MapMode = "FlatFace"
sketch10.AttachmentOffset = App.Placement(App.Vector(0, 0, -1.91 * 25.4), App.Rotation())
sketch10.addGeometry(Part.Circle(App.Vector(0, 36.83, 0), App.Vector(0, 0, 1), 5.08), False)
sketch10.addConstraint(Sketcher.Constraint("PointOnObject", 0, 3, -2))
sketch10.addConstraint(Sketcher.Constraint("Diameter", 0, Q("0.4 in")))
sketch10.addConstraint(Sketcher.Constraint("DistanceY", -1, 1, 0, 3, Q("1.45 in")))
pocket1 = doc.addObject("PartDesign::Pocket", "Pocket")
body.addObject(pocket1)
pocket1.Profile = sketch10
pocket1.Length = Q("1.29 in")
pocket1.Reversed = True

sketch11 = doc.addObject("Sketcher::SketchObject", "Sketch010")
body.addObject(sketch11)
sketch11.AttachmentSupport = (doc.XY_Plane, [""])
sketch11.MapMode = "FlatFace"
sketch11.AttachmentOffset = App.Placement(App.Vector(0, 0, 0.5 * 25.4), App.Rotation())
sketch11.addGeometry(Part.LineSegment(App.Vector(-3.175, -20.32, 0), App.Vector(-3.175, -27.94, 0)), False)
sketch11.addGeometry(Part.LineSegment(App.Vector(-3.175, -27.94, 0), App.Vector(3.175, -27.94, 0)), False)
sketch11.addGeometry(Part.LineSegment(App.Vector(3.175, -27.94, 0), App.Vector(3.175, -20.32, 0)), False)
sketch11.addGeometry(Part.LineSegment(App.Vector(3.175, -20.32, 0), App.Vector(-3.175, -20.32, 0)), False)
sketch11.addConstraint(Sketcher.Constraint("Coincident", 0, 2, 1, 1))
sketch11.addConstraint(Sketcher.Constraint("Coincident", 1, 2, 2, 1))
sketch11.addConstraint(Sketcher.Constraint("Coincident", 2, 2, 3, 1))
sketch11.addConstraint(Sketcher.Constraint("Coincident", 3, 2, 0, 1))
sketch11.addConstraint(Sketcher.Constraint("Vertical", 0))
sketch11.addConstraint(Sketcher.Constraint("Horizontal", 1))
sketch11.addConstraint(Sketcher.Constraint("Vertical", 2))
sketch11.addConstraint(Sketcher.Constraint("Horizontal", 3))
sketch11.addConstraint(Sketcher.Constraint("DistanceY", 0, 2, 0, 1, Q("0.3 in")))
sketch11.addConstraint(Sketcher.Constraint("DistanceX", 1, 1, 1, 2, Q("0.25 in")))
sketch11.addConstraint(Sketcher.Constraint("DistanceY", 0, 2, -1, 1, Q("1.1 in")))
sketch11.addConstraint(Sketcher.Constraint("DistanceX", 0, 2, -1, 1, Q("0.125 in")))
pocket2 = doc.addObject("PartDesign::Pocket", "Pocket001")
body.addObject(pocket2)
pocket2.Profile = sketch11
pocket2.Length = Q("1.13 in")

doc.recompute()
